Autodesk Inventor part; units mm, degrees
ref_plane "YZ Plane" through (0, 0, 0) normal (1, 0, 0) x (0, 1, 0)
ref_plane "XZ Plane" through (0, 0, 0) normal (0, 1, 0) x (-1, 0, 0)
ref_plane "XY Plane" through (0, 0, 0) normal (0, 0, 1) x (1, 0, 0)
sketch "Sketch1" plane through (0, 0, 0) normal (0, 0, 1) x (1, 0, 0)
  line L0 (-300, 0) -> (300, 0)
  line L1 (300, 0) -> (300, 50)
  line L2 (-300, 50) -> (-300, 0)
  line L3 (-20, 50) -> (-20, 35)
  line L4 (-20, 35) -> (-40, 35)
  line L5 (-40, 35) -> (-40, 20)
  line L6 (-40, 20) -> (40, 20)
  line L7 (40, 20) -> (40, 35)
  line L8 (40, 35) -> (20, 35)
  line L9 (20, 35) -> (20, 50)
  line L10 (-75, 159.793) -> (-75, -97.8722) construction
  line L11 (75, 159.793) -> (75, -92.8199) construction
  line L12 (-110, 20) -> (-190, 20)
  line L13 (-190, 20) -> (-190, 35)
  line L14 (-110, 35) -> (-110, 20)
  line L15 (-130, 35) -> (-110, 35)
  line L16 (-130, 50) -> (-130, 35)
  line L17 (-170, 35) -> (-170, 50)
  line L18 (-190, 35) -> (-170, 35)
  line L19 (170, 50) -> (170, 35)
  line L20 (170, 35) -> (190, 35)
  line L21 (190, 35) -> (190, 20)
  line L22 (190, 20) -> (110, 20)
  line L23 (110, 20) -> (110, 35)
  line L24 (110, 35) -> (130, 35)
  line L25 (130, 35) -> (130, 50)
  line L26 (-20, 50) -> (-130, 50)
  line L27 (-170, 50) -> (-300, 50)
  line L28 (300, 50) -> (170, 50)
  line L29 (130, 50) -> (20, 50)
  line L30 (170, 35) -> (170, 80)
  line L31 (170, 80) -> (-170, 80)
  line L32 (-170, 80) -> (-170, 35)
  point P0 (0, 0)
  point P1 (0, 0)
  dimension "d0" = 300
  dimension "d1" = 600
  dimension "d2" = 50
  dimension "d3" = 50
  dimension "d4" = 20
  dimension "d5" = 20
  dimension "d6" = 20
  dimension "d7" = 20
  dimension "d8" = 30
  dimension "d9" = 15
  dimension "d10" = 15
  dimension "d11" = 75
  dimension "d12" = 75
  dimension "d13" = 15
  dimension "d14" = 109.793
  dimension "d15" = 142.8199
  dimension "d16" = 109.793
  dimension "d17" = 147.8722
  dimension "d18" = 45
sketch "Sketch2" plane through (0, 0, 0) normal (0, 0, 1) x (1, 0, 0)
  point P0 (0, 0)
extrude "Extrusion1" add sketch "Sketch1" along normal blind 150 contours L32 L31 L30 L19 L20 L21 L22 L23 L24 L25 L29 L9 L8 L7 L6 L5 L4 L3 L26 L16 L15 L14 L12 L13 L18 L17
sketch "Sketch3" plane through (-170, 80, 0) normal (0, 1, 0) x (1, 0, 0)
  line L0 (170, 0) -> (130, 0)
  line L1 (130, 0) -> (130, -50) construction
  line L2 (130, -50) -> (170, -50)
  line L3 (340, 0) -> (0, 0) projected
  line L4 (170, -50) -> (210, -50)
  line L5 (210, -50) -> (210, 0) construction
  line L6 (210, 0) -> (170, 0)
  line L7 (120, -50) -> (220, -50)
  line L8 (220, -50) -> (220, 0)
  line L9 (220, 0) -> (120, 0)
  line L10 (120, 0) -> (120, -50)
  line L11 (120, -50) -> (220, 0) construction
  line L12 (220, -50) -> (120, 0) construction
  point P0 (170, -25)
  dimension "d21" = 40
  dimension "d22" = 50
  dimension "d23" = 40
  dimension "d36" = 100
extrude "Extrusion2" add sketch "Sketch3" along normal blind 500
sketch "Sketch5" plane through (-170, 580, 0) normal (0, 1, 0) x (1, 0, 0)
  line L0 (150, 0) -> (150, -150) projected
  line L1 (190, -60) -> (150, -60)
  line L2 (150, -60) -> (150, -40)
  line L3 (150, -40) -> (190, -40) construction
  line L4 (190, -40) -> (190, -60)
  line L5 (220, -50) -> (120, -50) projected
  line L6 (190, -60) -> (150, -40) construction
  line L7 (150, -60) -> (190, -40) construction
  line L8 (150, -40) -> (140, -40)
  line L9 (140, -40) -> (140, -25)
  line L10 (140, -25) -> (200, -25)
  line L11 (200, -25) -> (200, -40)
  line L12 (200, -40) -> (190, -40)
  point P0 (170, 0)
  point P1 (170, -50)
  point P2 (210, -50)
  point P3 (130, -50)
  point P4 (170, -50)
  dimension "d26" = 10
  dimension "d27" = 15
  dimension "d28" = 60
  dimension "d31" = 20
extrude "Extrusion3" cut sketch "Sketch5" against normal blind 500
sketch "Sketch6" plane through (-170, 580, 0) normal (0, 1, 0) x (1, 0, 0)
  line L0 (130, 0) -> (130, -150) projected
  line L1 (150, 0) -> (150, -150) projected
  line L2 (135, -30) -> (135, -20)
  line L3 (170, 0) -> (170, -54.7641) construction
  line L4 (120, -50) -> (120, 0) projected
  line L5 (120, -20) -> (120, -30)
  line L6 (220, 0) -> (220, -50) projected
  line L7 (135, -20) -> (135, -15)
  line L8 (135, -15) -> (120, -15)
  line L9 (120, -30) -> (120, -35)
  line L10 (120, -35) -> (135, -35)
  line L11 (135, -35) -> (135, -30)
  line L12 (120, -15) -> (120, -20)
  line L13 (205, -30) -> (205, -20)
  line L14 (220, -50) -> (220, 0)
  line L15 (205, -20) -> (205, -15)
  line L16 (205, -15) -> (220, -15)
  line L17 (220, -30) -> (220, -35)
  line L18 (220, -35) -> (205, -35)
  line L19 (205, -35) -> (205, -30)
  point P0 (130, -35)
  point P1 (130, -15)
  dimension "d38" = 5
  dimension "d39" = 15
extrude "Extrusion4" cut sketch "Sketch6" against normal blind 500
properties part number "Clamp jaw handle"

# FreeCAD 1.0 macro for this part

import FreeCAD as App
import Part
import Sketcher

doc = App.newDocument("Part")
body = doc.addObject("PartDesign::Body", "Body")

# Sketch on XY plane
sketch1 = body.newObject("Sketcher::SketchObject", "Sketch")
sketch1.AttachmentSupport = (doc.getObject("XY_Plane"), [""])
sketch1.MapMode = "FlatFace"
sketch1.addGeometry(Part.LineSegment(App.Vector(-170, 80, 0), App.Vector(-170, 35, 0)), False)
sketch1.addGeometry(Part.LineSegment(App.Vector(-170, 35, 0), App.Vector(-190, 35, 0)), False)
sketch1.addGeometry(Part.LineSegment(App.Vector(-190, 35, 0), App.Vector(-190, 20, 0)), False)
sketch1.addGeometry(Part.LineSegment(App.Vector(-190, 20, 0), App.Vector(-110, 20, 0)), False)
sketch1.addGeometry(Part.LineSegment(App.Vector(-110, 20, 0), App.Vector(-110, 35, 0)), False)
sketch1.addGeometry(Part.LineSegment(App.Vector(-110, 35, 0), App.Vector(-130, 35, 0)), False)
sketch1.addGeometry(Part.LineSegment(App.Vector(-130, 35, 0), App.Vector(-130, 50, 0)), False)
sketch1.addGeometry(Part.LineSegment(App.Vector(-130, 50, 0), App.Vector(-20, 50, 0)), False)
sketch1.addGeometry(Part.LineSegment(App.Vector(-20, 50, 0), App.Vector(-20, 35, 0)), False)
sketch1.addGeometry(Part.LineSegment(App.Vector(-20, 35, 0), App.Vector(-40, 35, 0)), False)
sketch1.addGeometry(Part.LineSegment(App.Vector(-40, 35, 0), App.Vector(-40, 20, 0)), False)
sketch1.addGeometry(Part.LineSegment(App.Vector(-40, 20, 0), App.Vector(40, 20, 0)), False)
sketch1.addGeometry(Part.LineSegment(App.Vector(40, 20, 0), App.Vector(40, 35, 0)), False)
sketch1.addGeometry(Part.LineSegment(App.Vector(40, 35, 0), App.Vector(20, 35, 0)), False)
sketch1.addGeometry(Part.LineSegment(App.Vector(20, 35, 0), App.Vector(20, 50, 0)), False)
sketch1.addGeometry(Part.LineSegment(App.Vector(20, 50, 0), App.Vector(130, 50, 0)), False)
sketch1.addGeometry(Part.LineSegment(App.Vector(130, 50, 0), App.Vector(130, 35, 0)), False)
sketch1.addGeometry(Part.LineSegment(App.Vector(130, 35, 0), App.Vector(110, 35, 0)), False)
sketch1.addGeometry(Part.LineSegment(App.Vector(110, 35, 0), App.Vector(110, 20, 0)), False)
sketch1.addGeometry(Part.LineSegment(App.Vector(110, 20, 0), App.Vector(190, 20, 0)), False)
sketch1.addGeometry(Part.LineSegment(App.Vector(190, 20, 0), App.Vector(190, 35, 0)), False)
sketch1.addGeometry(Part.LineSegment(App.Vector(190, 35, 0), App.Vector(170, 35, 0)), False)
sketch1.addGeometry(Part.LineSegment(App.Vector(170, 35, 0), App.Vector(170, 80, 0)), False)
sketch1.addGeometry(Part.LineSegment(App.Vector(170, 80, 0), App.Vector(-170, 80, 0)), False)
sketch1.addConstraint(Sketcher.Constraint("Coincident", 0, 2, 1, 1))
sketch1.addConstraint(Sketcher.Constraint("Coincident", 1, 2, 2, 1))
sketch1.addConstraint(Sketcher.Constraint("Coincident", 2, 2, 3, 1))
sketch1.addConstraint(Sketcher.Constraint("Coincident", 3, 2, 4, 1))
sketch1.addConstraint(Sketcher.Constraint("Coincident", 4, 2, 5, 1))
sketch1.addConstraint(Sketcher.Constraint("Coincident", 5, 2, 6, 1))
sketch1.addConstraint(Sketcher.Constraint("Coincident", 6, 2, 7, 1))
sketch1.addConstraint(Sketcher.Constraint("Coincident", 7, 2, 8, 1))
sketch1.addConstraint(Sketcher.Constraint("Coincident", 8, 2, 9, 1))
sketch1.addConstraint(Sketcher.Constraint("Coincident", 9, 2, 10, 1))
sketch1.addConstraint(Sketcher.Constraint("Coincident", 10, 2, 11, 1))
sketch1.addConstraint(Sketcher.Constraint("Coincident", 11, 2, 12, 1))
sketch1.addConstraint(Sketcher.Constraint("Coincident", 12, 2, 13, 1))
sketch1.addConstraint(Sketcher.Constraint("Coincident", 13, 2, 14, 1))
sketch1.addConstraint(Sketcher.Constraint("Coincident", 14, 2, 15, 1))
sketch1.addConstraint(Sketcher.Constraint("Coincident", 15, 2, 16, 1))
sketch1.addConstraint(Sketcher.Constraint("Coincident", 16, 2, 17, 1))
sketch1.addConstraint(Sketcher.Constraint("Coincident", 17, 2, 18, 1))
sketch1.addConstraint(Sketcher.Constraint("Coincident", 18, 2, 19, 1))
sketch1.addConstraint(Sketcher.Constraint("Coincident", 19, 2, 20, 1))
sketch1.addConstraint(Sketcher.Constraint("Coincident", 20, 2, 21, 1))
sketch1.addConstraint(Sketcher.Constraint("Coincident", 21, 2, 22, 1))
sketch1.addConstraint(Sketcher.Constraint("Coincident", 22, 2, 23, 1))
sketch1.addConstraint(Sketcher.Constraint("Coincident", 23, 2, 0, 1))
sketch1.addConstraint(Sketcher.Constraint("Vertical", 0))
sketch1.addConstraint(Sketcher.Constraint("Horizontal", 1))
sketch1.addConstraint(Sketcher.Constraint("Vertical", 2))
sketch1.addConstraint(Sketcher.Constraint("Horizontal", 3))
sketch1.addConstraint(Sketcher.Constraint("Vertical", 4))
sketch1.addConstraint(Sketcher.Constraint("Horizontal", 5))
sketch1.addConstraint(Sketcher.Constraint("Vertical", 6))
sketch1.addConstraint(Sketcher.Constraint("Horizontal", 7))
sketch1.addConstraint(Sketcher.Constraint("Vertical", 8))
sketch1.addConstraint(Sketcher.Constraint("Horizontal", 9))
sketch1.addConstraint(Sketcher.Constraint("Vertical", 10))
sketch1.addConstraint(Sketcher.Constraint("Horizontal", 11))
sketch1.addConstraint(Sketcher.Constraint("Vertical", 12))
sketch1.addConstraint(Sketcher.Constraint("Horizontal", 13))
sketch1.addConstraint(Sketcher.Constraint("Vertical", 14))
sketch1.addConstraint(Sketcher.Constraint("Horizontal", 15))
sketch1.addConstraint(Sketcher.Constraint("Vertical", 16))
sketch1.addConstraint(Sketcher.Constraint("Horizontal", 17))
sketch1.addConstraint(Sketcher.Constraint("Vertical", 18))
sketch1.addConstraint(Sketcher.Constraint("Horizontal", 19))
sketch1.addConstraint(Sketcher.Constraint("Vertical", 20))
sketch1.addConstraint(Sketcher.Constraint("Horizontal", 21))
sketch1.addConstraint(Sketcher.Constraint("Vertical", 22))
sketch1.addConstraint(Sketcher.Constraint("Horizontal", 23))
sketch1.addConstraint(Sketcher.Constraint("Symmetric", 9, 2, 12, 2, -2))
sketch1.addConstraint(Sketcher.Constraint("Symmetric", 7, 2, 14, 2, -2))
sketch1.addConstraint(Sketcher.Constraint("Symmetric", 5, 2, 16, 2, -2))
sketch1.addConstraint(Sketcher.Constraint("Symmetric", 3, 2, 18, 2, -2))
sketch1.addConstraint(Sketcher.Constraint("Symmetric", 1, 2, 20, 2, -2))
sketch1.addConstraint(Sketcher.Constraint("Horizontal", 1, 2, 4, 2))
sketch1.addConstraint(Sketcher.Constraint("Horizontal", 5, 2, 8, 2))
sketch1.addConstraint(Sketcher.Constraint("Horizontal", 3, 2, 10, 2))
sketch1.addConstraint(Sketcher.Constraint("Equal", 1, 5))
sketch1.addConstraint(Sketcher.Constraint("Equal", 5, 9))
sketch1.addConstraint(Sketcher.Constraint("Equal", 3, 11))
sketch1.addConstraint(Sketcher.Constraint("Equal", 17, 21))
sketch1.addConstraint(Sketcher.Constraint("Equal", 4, 6))
sketch1.addConstraint(Sketcher.Constraint("DistanceX", 1, 2, 1, 1, 20.0))
sketch1.addConstraint(Sketcher.Constraint("DistanceY", 0, 2, 0, 1, 45.0))
sketch1.addConstraint(Sketcher.Constraint("DistanceY", 2, 2, 2, 1, 15.0))
sketch1.addConstraint(Sketcher.Constraint("DistanceY", -1, 1, 2, 2, 20.0))
sketch1.addConstraint(Sketcher.Constraint("DistanceX", 7, 2, -1, 1, 20.0))
sketch1.addConstraint(Sketcher.Constraint("DistanceX", 7, 1, 7, 2, 110.0))
pad1 = body.newObject("PartDesign::Pad", "Pad")
pad1.Profile = sketch1
pad1.Length = 150

# Sketch on XZ plane
sketch2 = body.newObject("Sketcher::SketchObject", "Sketch001")
sketch2.AttachmentSupport = (doc.getObject("XZ_Plane"), [""])
sketch2.MapMode = "FlatFace"
sketch2.AttachmentOffset = App.Placement(App.Vector(0, 0, -80), App.Rotation())
sketch2.addGeometry(Part.LineSegment(App.Vector(50, 0, 0), App.Vector(-50, 0, 0)), False)
sketch2.addGeometry(Part.LineSegment(App.Vector(-50, 0, 0), App.Vector(-50, 50, 0)), False)
sketch2.addGeometry(Part.LineSegment(App.Vector(-50, 50, 0), App.Vector(50, 50, 0)), False)
sketch2.addGeometry(Part.LineSegment(App.Vector(50, 50, 0), App.Vector(50, 0, 0)), False)
sketch2.addConstraint(Sketcher.Constraint("Coincident", 0, 2, 1, 1))
sketch2.addConstraint(Sketcher.Constraint("Coincident", 1, 2, 2, 1))
sketch2.addConstraint(Sketcher.Constraint("Coincident", 2, 2, 3, 1))
sketch2.addConstraint(Sketcher.Constraint("Coincident", 3, 2, 0, 1))
sketch2.addConstraint(Sketcher.Constraint("Horizontal", 0))
sketch2.addConstraint(Sketcher.Constraint("Vertical", 1))
sketch2.addConstraint(Sketcher.Constraint("Horizontal", 2))
sketch2.addConstraint(Sketcher.Constraint("Vertical", 3))
sketch2.addConstraint(Sketcher.Constraint("Symmetric", 0, 2, 3, 2, -1, 1))
sketch2.addConstraint(Sketcher.Constraint("DistanceX", 0, 2, 0, 1, 100.0))
sketch2.addConstraint(Sketcher.Constraint("DistanceY", 1, 1, 1, 2, 50.0))
pad2 = body.newObject("PartDesign::Pad", "Pad001")
pad2.Profile = sketch2
pad2.Length = 500
pad2.Reversed = True

# Sketch on XZ plane
sketch3 = body.newObject("Sketcher::SketchObject", "Sketch002")
sketch3.AttachmentSupport = (doc.getObject("XZ_Plane"), [""])
sketch3.MapMode = "FlatFace"
sketch3.AttachmentOffset = App.Placement(App.Vector(0, 0, -580), App.Rotation())
sketch3.addGeometry(Part.LineSegment(App.Vector(30, 25, 0), App.Vector(-30, 25, 0)), False)
sketch3.addGeometry(Part.LineSegment(App.Vector(-30, 25, 0), App.Vector(-30, 40, 0)), False)
sketch3.addGeometry(Part.LineSegment(App.Vector(-30, 40, 0), App.Vector(-20, 40, 0)), False)
sketch3.addGeometry(Part.LineSegment(App.Vector(-20, 40, 0), App.Vector(-20, 60, 0)), False)
sketch3.addGeometry(Part.LineSegment(App.Vector(-20, 60, 0), App.Vector(20, 60, 0)), False)
sketch3.addGeometry(Part.LineSegment(App.Vector(20, 60, 0), App.Vector(20, 40, 0)), False)
sketch3.addGeometry(Part.LineSegment(App.Vector(20, 40, 0), App.Vector(30, 40, 0)), False)
sketch3.addGeometry(Part.LineSegment(App.Vector(30, 40, 0), App.Vector(30, 25, 0)), False)
sketch3.addConstraint(Sketcher.Constraint("Coincident", 0, 2, 1, 1))
sketch3.addConstraint(Sketcher.Constraint("Coincident", 1, 2, 2, 1))
sketch3.addConstraint(Sketcher.Constraint("Coincident", 2, 2, 3, 1))
sketch3.addConstraint(Sketcher.Constraint("Coincident", 3, 2, 4, 1))
sketch3.addConstraint(Sketcher.Constraint("Coincident", 4, 2, 5, 1))
sketch3.addConstraint(Sketcher.Constraint("Coincident", 5, 2, 6, 1))
sketch3.addConstraint(Sketcher.Constraint("Coincident", 6, 2, 7, 1))
sketch3.addConstraint(Sketcher.Constraint("Coincident", 7, 2, 0, 1))
sketch3.addConstraint(Sketcher.Constraint("Horizontal", 0))
sketch3.addConstraint(Sketcher.Constraint("Vertical", 1))
sketch3.addConstraint(Sketcher.Constraint("Horizontal", 2))
sketch3.addConstraint(Sketcher.Constraint("Vertical", 3))
sketch3.addConstraint(Sketcher.Constraint("Horizontal", 4))
sketch3.addConstraint(Sketcher.Constraint("Vertical", 5))
sketch3.addConstraint(Sketcher.Constraint("Horizontal", 6))
sketch3.addConstraint(Sketcher.Constraint("Vertical", 7))
sketch3.addConstraint(Sketcher.Constraint("Symmetric", 2, 2, 5, 2, -2))
sketch3.addConstraint(Sketcher.Constraint("Equal", 2, 6))
sketch3.addConstraint(Sketcher.Constraint("DistanceX", 0, 2, 0, 1, 60.0))
sketch3.addConstraint(Sketcher.Constraint("DistanceX", 2, 1, 2, 2, 10.0))
sketch3.addConstraint(Sketcher.Constraint("DistanceY", 1, 1, 1, 2, 15.0))
sketch3.addConstraint(Sketcher.Constraint("DistanceY", 3, 1, 3, 2, 20.0))
sketch3.addConstraint(Sketcher.Constraint("DistanceY", -1, 1, 3, 2, 60.0))
pocket1 = body.newObject("PartDesign::Pocket", "Pocket")
pocket1.Profile = sketch3
pocket1.Length = 500
pocket1.Reversed = True

# Sketch on XZ plane
sketch4 = body.newObject("Sketcher::SketchObject", "Sketch003")
sketch4.AttachmentSupport = (doc.getObject("XZ_Plane"), [""])
sketch4.MapMode = "FlatFace"
sketch4.AttachmentOffset = App.Placement(App.Vector(0, 0, -580), App.Rotation())
sketch4.addGeometry(Part.LineSegment(App.Vector(-35, 15, 0), App.Vector(-50, 15, 0)), False)
sketch4.addGeometry(Part.LineSegment(App.Vector(-50, 15, 0), App.Vector(-50, 35, 0)), False)
sketch4.addGeometry(Part.LineSegment(App.Vector(-50, 35, 0), App.Vector(-35, 35, 0)), False)
sketch4.addGeometry(Part.LineSegment(App.Vector(-35, 35, 0), App.Vector(-35, 15, 0)), False)
sketch4.addGeometry(Part.LineSegment(App.Vector(50, 35, 0), App.Vector(50, 15, 0)), False)
sketch4.addGeometry(Part.LineSegment(App.Vector(50, 15, 0), App.Vector(35, 15, 0)), False)
sketch4.addGeometry(Part.LineSegment(App.Vector(35, 15, 0), App.Vector(35, 35, 0)), False)
sketch4.addGeometry(Part.LineSegment(App.Vector(35, 35, 0), App.Vector(50, 35, 0)), False)
sketch4.addConstraint(Sketcher.Constraint("Coincident", 0, 2, 1, 1))
sketch4.addConstraint(Sketcher.Constraint("Coincident", 1, 2, 2, 1))
sketch4.addConstraint(Sketcher.Constraint("Coincident", 2, 2, 3, 1))
sketch4.addConstraint(Sketcher.Constraint("Coincident", 3, 2, 0, 1))
sketch4.addConstraint(Sketcher.Constraint("Coincident", 4, 2, 5, 1))
sketch4.addConstraint(Sketcher.Constraint("Coincident", 5, 2, 6, 1))
sketch4.addConstraint(Sketcher.Constraint("Coincident", 6, 2, 7, 1))
sketch4.addConstraint(Sketcher.Constraint("Coincident", 7, 2, 4, 1))
sketch4.addConstraint(Sketcher.Constraint("Horizontal", 0))
sketch4.addConstraint(Sketcher.Constraint("Vertical", 1))
sketch4.addConstraint(Sketcher.Constraint("Horizontal", 2))
sketch4.addConstraint(Sketcher.Constraint("Vertical", 3))
sketch4.addConstraint(Sketcher.Constraint("Vertical", 4))
sketch4.addConstraint(Sketcher.Constraint("Horizontal", 5))
sketch4.addConstraint(Sketcher.Constraint("Vertical", 6))
sketch4.addConstraint(Sketcher.Constraint("Horizontal", 7))
sketch4.addConstraint(Sketcher.Constraint("Symmetric", 0, 2, 4, 2, -2))
sketch4.addConstraint(Sketcher.Constraint("Symmetric", 2, 2, 6, 2, -2))
sketch4.addConstraint(Sketcher.Constraint("DistanceX", 0, 2, 0, 1, 15.0))
sketch4.addConstraint(Sketcher.Constraint("DistanceY", -1, 1, 0, 2, 15.0))
sketch4.addConstraint(Sketcher.Constraint("DistanceY", 1, 1, 1, 2, 20.0))
sketch4.addConstraint(Sketcher.Constraint("DistanceX", 0, 2, -1, 1, 50.0))
pocket2 = body.newObject("PartDesign::Pocket", "Pocket001")
pocket2.Profile = sketch4
pocket2.Length = 500
pocket2.Reversed = True

doc.recompute()
